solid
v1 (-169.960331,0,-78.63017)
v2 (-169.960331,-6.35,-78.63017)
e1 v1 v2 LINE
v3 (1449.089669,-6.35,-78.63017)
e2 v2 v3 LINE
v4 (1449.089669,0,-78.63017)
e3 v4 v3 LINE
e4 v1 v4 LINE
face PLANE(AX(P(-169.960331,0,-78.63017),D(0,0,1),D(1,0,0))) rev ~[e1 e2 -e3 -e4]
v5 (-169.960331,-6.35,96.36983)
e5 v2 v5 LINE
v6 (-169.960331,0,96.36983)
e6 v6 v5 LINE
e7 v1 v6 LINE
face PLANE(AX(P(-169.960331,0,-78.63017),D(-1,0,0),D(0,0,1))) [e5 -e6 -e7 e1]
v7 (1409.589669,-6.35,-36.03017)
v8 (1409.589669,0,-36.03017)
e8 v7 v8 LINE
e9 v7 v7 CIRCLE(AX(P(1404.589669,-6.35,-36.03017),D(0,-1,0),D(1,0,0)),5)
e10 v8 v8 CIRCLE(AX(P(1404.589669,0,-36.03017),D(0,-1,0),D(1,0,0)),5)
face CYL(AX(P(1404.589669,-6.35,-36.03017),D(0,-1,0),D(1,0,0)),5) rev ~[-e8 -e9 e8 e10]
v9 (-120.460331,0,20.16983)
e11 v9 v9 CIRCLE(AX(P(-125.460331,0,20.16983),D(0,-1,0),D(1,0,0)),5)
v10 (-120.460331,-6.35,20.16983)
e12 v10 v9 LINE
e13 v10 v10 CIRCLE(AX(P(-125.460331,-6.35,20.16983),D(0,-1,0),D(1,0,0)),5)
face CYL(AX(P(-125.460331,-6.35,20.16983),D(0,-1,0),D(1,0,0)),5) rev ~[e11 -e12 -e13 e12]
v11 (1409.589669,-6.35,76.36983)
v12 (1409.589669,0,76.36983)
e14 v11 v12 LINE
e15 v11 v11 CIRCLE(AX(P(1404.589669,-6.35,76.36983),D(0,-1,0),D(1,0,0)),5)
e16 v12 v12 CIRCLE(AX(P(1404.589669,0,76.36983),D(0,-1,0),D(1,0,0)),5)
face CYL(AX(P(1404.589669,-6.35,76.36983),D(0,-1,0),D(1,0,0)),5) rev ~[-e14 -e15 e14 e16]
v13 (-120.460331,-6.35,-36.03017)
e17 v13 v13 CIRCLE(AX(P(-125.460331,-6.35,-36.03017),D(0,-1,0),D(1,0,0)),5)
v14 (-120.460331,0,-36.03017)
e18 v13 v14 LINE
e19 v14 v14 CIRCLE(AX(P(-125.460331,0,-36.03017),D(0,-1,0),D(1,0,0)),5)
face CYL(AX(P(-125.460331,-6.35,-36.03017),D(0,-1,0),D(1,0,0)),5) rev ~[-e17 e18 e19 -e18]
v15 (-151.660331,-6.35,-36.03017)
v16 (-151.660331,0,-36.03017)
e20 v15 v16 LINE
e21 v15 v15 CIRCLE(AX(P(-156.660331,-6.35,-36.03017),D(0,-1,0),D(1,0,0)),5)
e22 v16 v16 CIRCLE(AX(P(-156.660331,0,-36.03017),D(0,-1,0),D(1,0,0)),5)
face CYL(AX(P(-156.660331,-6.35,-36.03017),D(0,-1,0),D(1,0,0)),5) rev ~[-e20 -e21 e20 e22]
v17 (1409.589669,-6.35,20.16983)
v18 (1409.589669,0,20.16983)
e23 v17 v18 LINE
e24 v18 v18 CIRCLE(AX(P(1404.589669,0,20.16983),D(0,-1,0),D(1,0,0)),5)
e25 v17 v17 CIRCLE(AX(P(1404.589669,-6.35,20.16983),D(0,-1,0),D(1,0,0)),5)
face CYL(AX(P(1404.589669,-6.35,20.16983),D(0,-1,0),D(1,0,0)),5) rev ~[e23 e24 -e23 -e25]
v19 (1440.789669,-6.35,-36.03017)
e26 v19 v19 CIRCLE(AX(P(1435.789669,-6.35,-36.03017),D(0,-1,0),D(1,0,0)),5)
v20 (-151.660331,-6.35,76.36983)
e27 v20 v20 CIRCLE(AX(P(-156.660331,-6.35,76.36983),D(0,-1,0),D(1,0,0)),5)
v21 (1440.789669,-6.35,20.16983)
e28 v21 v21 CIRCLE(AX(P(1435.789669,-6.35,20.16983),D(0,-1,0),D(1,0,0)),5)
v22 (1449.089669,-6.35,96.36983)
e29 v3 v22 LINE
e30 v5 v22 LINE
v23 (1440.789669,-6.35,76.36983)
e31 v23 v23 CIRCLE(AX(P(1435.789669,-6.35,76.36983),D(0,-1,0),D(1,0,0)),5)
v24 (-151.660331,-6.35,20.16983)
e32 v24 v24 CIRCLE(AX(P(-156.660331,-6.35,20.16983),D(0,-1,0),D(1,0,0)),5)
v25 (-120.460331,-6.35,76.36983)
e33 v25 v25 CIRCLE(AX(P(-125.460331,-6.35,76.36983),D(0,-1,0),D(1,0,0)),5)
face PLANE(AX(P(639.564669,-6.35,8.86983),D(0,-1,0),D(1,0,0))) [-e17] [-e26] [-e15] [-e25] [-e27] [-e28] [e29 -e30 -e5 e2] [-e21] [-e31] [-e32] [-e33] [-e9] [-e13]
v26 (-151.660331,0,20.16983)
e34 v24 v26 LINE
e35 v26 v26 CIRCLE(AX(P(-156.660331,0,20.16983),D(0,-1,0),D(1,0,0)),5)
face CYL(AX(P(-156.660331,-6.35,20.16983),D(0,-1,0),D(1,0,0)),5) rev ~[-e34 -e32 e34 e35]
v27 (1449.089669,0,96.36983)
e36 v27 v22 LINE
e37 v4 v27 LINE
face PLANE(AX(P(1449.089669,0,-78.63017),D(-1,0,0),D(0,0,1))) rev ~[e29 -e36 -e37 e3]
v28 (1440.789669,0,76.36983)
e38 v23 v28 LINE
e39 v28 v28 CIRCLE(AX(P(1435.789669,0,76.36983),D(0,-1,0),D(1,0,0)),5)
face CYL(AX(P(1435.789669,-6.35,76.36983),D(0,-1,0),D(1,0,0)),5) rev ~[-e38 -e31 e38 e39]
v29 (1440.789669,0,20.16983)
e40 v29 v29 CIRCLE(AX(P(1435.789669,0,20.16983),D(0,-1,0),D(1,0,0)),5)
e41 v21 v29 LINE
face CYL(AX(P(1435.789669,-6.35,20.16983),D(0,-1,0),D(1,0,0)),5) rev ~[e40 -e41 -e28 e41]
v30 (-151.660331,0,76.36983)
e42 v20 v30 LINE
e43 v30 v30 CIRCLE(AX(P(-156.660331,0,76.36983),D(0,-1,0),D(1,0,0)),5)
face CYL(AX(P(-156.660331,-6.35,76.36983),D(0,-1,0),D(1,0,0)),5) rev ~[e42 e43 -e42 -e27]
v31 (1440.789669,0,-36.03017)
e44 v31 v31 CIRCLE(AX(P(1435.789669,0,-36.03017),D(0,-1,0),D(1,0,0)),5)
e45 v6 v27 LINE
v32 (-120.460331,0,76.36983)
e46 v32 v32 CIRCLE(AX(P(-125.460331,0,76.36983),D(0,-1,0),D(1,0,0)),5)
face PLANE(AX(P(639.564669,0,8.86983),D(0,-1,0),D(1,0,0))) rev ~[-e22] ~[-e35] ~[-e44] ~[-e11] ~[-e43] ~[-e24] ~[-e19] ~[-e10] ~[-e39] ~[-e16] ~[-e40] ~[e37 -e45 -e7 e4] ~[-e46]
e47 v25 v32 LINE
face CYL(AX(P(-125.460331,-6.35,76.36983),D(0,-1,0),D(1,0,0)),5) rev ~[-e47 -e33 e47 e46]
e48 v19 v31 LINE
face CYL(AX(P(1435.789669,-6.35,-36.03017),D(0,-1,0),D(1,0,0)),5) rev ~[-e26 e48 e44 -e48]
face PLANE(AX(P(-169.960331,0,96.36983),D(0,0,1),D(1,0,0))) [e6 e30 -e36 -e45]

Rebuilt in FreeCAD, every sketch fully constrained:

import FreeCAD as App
import Part
import Sketcher

V = App.Vector
Q = App.Units.Quantity


def add_polygon(sketch, points):
    """Adds a closed chain of lines whose ends are joined by coincident constraints."""
    first, n = sketch.GeometryCount, len(points)
    for a, b in zip(points, points[1:] + points[:1]):
        sketch.addGeometry(Part.LineSegment(App.Vector(*a, 0), App.Vector(*b, 0)), False)
    for i in range(n):
        sketch.addConstraint(Sketcher.Constraint("Coincident", first + i, 2, first + (i + 1) % n, 1))

doc = App.newDocument("Part")
body = doc.addObject("PartDesign::Body", "Body")

# Sketch on XZ plane
sketch1 = body.newObject("Sketcher::SketchObject", "Sketch")
sketch1.AttachmentSupport = (doc.getObject("XZ_Plane"), [""])
sketch1.MapMode = "FlatFace"
add_polygon(sketch1, [(-170, 96), (-170, -79), (1449, -79), (1449, 96)])  # lines 0-3
sketch1.addConstraint(Sketcher.Constraint("Vertical", 0))
sketch1.addConstraint(Sketcher.Constraint("Horizontal", 1))
sketch1.addConstraint(Sketcher.Constraint("Vertical", 2))
sketch1.addConstraint(Sketcher.Constraint("Horizontal", 3))
sketch1.addConstraint(Sketcher.Constraint("DistanceY", 0, 2, 0, 1, Q("175 mm")))
sketch1.addConstraint(Sketcher.Constraint("DistanceX", 1, 1, 1, 2, Q("1619.05 mm")))
sketch1.addConstraint(Sketcher.Constraint("DistanceX", 0, 2, -1, 1, Q("169.960331 mm")))
sketch1.addConstraint(Sketcher.Constraint("DistanceY", 0, 2, -1, 1, Q("78.63017 mm")))
pad1 = body.newObject("PartDesign::Pad", "Pad")
pad1.Profile = sketch1
pad1.Length = 6.35

# Sketch on XZ plane
sketch2 = body.newObject("Sketcher::SketchObject", "Sketch001")
sketch2.AttachmentSupport = (doc.getObject("XZ_Plane"), [""])
sketch2.MapMode = "FlatFace"
sketch2.AttachmentOffset = App.Placement(V(0, 0, 6.35), App.Rotation())
sketch2.addGeometry(Part.Circle(V(-157, 20, 0), V(0, 0, 1), 5), False)
sketch2.addGeometry(Part.Circle(V(-157, -36, 0), V(0, 0, 1), 5), False)
sketch2.addGeometry(Part.Circle(V(-125, 76, 0), V(0, 0, 1), 5), False)
sketch2.addGeometry(Part.Circle(V(-125, 20, 0), V(0, 0, 1), 5), False)
sketch2.addGeometry(Part.Circle(V(-125, -36, 0), V(0, 0, 1), 5), False)
sketch2.addGeometry(Part.Circle(V(-157, 76, 0), V(0, 0, 1), 5), False)
sketch2.addGeometry(Part.Circle(V(1405, 76, 0), V(0, 0, 1), 5), False)
sketch2.addGeometry(Part.Circle(V(1436, 76, 0), V(0, 0, 1), 5), False)
sketch2.addGeometry(Part.Circle(V(1405, 20, 0), V(0, 0, 1), 5), False)
sketch2.addGeometry(Part.Circle(V(1436, 20, 0), V(0, 0, 1), 5), False)
sketch2.addGeometry(Part.Circle(V(1436, -36, 0), V(0, 0, 1), 5), False)
sketch2.addGeometry(Part.Circle(V(1405, -36, 0), V(0, 0, 1), 5), False)
sketch2.addConstraint(Sketcher.Constraint("Equal", 0, 1))
sketch2.addConstraint(Sketcher.Constraint("Equal", 1, 2))
sketch2.addConstraint(Sketcher.Constraint("Equal", 2, 3))
sketch2.addConstraint(Sketcher.Constraint("Equal", 3, 4))
sketch2.addConstraint(Sketcher.Constraint("Equal", 4, 5))
sketch2.addConstraint(Sketcher.Constraint("Equal", 5, 6))
sketch2.addConstraint(Sketcher.Constraint("Equal", 6, 7))
sketch2.addConstraint(Sketcher.Constraint("Equal", 7, 8))
sketch2.addConstraint(Sketcher.Constraint("Equal", 8, 9))
sketch2.addConstraint(Sketcher.Constraint("Equal", 9, 10))
sketch2.addConstraint(Sketcher.Constraint("Equal", 10, 11))
sketch2.addConstraint(Sketcher.Constraint("Horizontal", 0, 3, 3, 3))
sketch2.addConstraint(Sketcher.Constraint("Horizontal", 1, 3, 4, 3))
sketch2.addConstraint(Sketcher.Constraint("Horizontal", 2, 3, 5, 3))
sketch2.addConstraint(Sketcher.Constraint("Horizontal", 5, 3, 6, 3))
sketch2.addConstraint(Sketcher.Constraint("Horizontal", 6, 3, 7, 3))
sketch2.addConstraint(Sketcher.Constraint("Horizontal", 3, 3, 8, 3))
sketch2.addConstraint(Sketcher.Constraint("Horizontal", 8, 3, 9, 3))
sketch2.addConstraint(Sketcher.Constraint("Horizontal", 4, 3, 10, 3))
sketch2.addConstraint(Sketcher.Constraint("Horizontal", 10, 3, 11, 3))
sketch2.addConstraint(Sketcher.Constraint("Vertical", 0, 3, 1, 3))
sketch2.addConstraint(Sketcher.Constraint("Vertical", 2, 3, 3, 3))
sketch2.addConstraint(Sketcher.Constraint("Vertical", 3, 3, 4, 3))
sketch2.addConstraint(Sketcher.Constraint("Vertical", 1, 3, 5, 3))
sketch2.addConstraint(Sketcher.Constraint("Vertical", 6, 3, 8, 3))
sketch2.addConstraint(Sketcher.Constraint("Vertical", 7, 3, 9, 3))
sketch2.addConstraint(Sketcher.Constraint("Vertical", 9, 3, 10, 3))
sketch2.addConstraint(Sketcher.Constraint("Vertical", 8, 3, 11, 3))
sketch2.addConstraint(Sketcher.Constraint("Diameter", 0, Q("10 mm")))
sketch2.addConstraint(Sketcher.Constraint("DistanceY", 1, 3, 0, 3, Q("56.2 mm")))
sketch2.addConstraint(Sketcher.Constraint("DistanceX", 0, 3, 2, 3, Q("31.2 mm")))
sketch2.addConstraint(Sketcher.Constraint("DistanceY", 0, 3, 2, 3, Q("56.2 mm")))
sketch2.addConstraint(Sketcher.Constraint("DistanceX", 6, 3, 7, 3, Q("31.2 mm")))
sketch2.addConstraint(Sketcher.Constraint("DistanceX", 2, 3, 6, 3, Q("1530.05 mm")))
sketch2.addConstraint(Sketcher.Constraint("DistanceX", 0, 3, -1, 1, Q("156.660331 mm")))
sketch2.addConstraint(Sketcher.Constraint("DistanceY", -1, 1, 0, 3, Q("20.16983 mm")))
pocket1 = body.newObject("PartDesign::Pocket", "Pocket")
pocket1.Profile = sketch2
pocket1.Length = 25

doc.recompute()
